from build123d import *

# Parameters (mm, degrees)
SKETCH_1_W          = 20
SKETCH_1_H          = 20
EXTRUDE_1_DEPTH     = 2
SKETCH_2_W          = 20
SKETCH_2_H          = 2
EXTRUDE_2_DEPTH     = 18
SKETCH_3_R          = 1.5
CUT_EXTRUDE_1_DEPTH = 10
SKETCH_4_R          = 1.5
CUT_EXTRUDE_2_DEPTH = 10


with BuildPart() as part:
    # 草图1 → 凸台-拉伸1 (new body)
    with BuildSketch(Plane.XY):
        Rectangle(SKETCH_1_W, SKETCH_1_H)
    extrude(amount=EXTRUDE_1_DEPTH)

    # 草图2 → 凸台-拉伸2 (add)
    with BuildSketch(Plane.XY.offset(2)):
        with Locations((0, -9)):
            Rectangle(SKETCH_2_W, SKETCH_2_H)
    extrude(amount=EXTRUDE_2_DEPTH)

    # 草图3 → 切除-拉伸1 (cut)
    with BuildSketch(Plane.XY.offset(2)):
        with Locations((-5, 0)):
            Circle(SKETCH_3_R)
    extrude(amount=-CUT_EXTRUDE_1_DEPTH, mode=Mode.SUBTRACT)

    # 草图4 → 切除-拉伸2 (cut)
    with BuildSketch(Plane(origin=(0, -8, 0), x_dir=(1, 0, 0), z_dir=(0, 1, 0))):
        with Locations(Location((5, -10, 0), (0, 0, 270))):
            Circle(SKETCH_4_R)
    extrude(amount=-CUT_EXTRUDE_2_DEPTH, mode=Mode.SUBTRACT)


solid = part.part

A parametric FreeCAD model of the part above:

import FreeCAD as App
import Part
import Sketcher


def add_polygon(sketch, points):
    """Adds a closed chain of lines whose ends are joined by coincident constraints."""
    first, n = sketch.GeometryCount, len(points)
    for a, b in zip(points, points[1:] + points[:1]):
        sketch.addGeometry(Part.LineSegment(App.Vector(*a, 0), App.Vector(*b, 0)), False)
    for i in range(n):
        sketch.addConstraint(Sketcher.Constraint("Coincident", first + i, 2, first + (i + 1) % n, 1))

doc = App.newDocument("Part")
body = doc.addObject("PartDesign::Body", "Body")

# Sketch on XY plane
sketch1 = doc.addObject("Sketcher::SketchObject", "Sketch")
body.addObject(sketch1)
sketch1.AttachmentSupport = (doc.XY_Plane, [""])
sketch1.MapMode = "FlatFace"
add_polygon(sketch1, [(-10, 10), (-10, -10), (10, -10), (10, 10)])  # lines 0-3
sketch1.addConstraint([
    Sketcher.Constraint("Vertical", 0),
    Sketcher.Constraint("Horizontal", 1),
    Sketcher.Constraint("Vertical", 2),
    Sketcher.Constraint("Horizontal", 3),
    Sketcher.Constraint("Symmetric", 0, 2, 2, 2, -1, 1),
    Sketcher.Constraint("Equal", 3, 0),
    Sketcher.Constraint("DistanceX", 1, 1, 1, 2, 20.0),
])
pad1 = doc.addObject("PartDesign::Pad", "Pad")
body.addObject(pad1)
pad1.Profile = sketch1
pad1.Length = 2

# Sketch on XY plane
sketch2 = doc.addObject("Sketcher::SketchObject", "Sketch001")
body.addObject(sketch2)
sketch2.AttachmentSupport = (doc.XY_Plane, [""])
sketch2.MapMode = "FlatFace"
sketch2.AttachmentOffset = App.Placement(App.Vector(0, 0, 2), App.Rotation())
add_polygon(sketch2, [(-10, -8), (-10, -10), (10, -10), (10, -8)])  # lines 0-3
sketch2.addConstraint([
    Sketcher.Constraint("Vertical", 0),
    Sketcher.Constraint("Horizontal", 1),
    Sketcher.Constraint("Vertical", 2),
    Sketcher.Constraint("Horizontal", 3),
    Sketcher.Constraint("DistanceX", 1, 1, 1, 2, 20.0),
    Sketcher.Constraint("DistanceY", 0, 2, 0, 1, 2.0),
    Sketcher.Constraint("DistanceX", 0, 2, -1, 1, 10.0),
    Sketcher.Constraint("DistanceY", 0, 2, -1, 1, 10.0),
])
pad2 = doc.addObject("PartDesign::Pad", "Pad001")
body.addObject(pad2)
pad2.Profile = sketch2
pad2.Length = 18

# Sketch on XY plane
sketch3 = doc.addObject("Sketcher::SketchObject", "Sketch002")
body.addObject(sketch3)
sketch3.AttachmentSupport = (doc.XY_Plane, [""])
sketch3.MapMode = "FlatFace"
sketch3.AttachmentOffset = App.Placement(App.Vector(0, 0, 2), App.Rotation())
sketch3.addGeometry(Part.Circle(App.Vector(-5, 0, 0), App.Vector(0, 0, 1), 1.5), False)
sketch3.addConstraint([
    Sketcher.Constraint("PointOnObject", 0, 3, -1),
    Sketcher.Constraint("Diameter", 0, 3.0),
    Sketcher.Constraint("DistanceX", 0, 3, -1, 1, 5.0),
])
pocket1 = doc.addObject("PartDesign::Pocket", "Pocket")
body.addObject(pocket1)
pocket1.Profile = sketch3
pocket1.Length = 10

# Sketch on XZ plane
sketch4 = doc.addObject("Sketcher::SketchObject", "Sketch003")
body.addObject(sketch4)
sketch4.AttachmentSupport = (doc.XZ_Plane, [""])
sketch4.MapMode = "FlatFace"
sketch4.AttachmentOffset = App.Placement(App.Vector(0, 0, 8), App.Rotation())
sketch4.addGeometry(Part.Circle(App.Vector(5, 10, 0), App.Vector(0, 0, 1), 1.5), False)
sketch4.addConstraint([
    Sketcher.Constraint("Diameter", 0, 3.0),
    Sketcher.Constraint("DistanceX", -1, 1, 0, 3, 5.0),
    Sketcher.Constraint("DistanceY", -1, 1, 0, 3, 10.0),
])
pocket2 = doc.addObject("PartDesign::Pocket", "Pocket001")
body.addObject(pocket2)
pocket2.Profile = sketch4
pocket2.Length = 10
pocket2.Reversed = True

doc.recompute()
